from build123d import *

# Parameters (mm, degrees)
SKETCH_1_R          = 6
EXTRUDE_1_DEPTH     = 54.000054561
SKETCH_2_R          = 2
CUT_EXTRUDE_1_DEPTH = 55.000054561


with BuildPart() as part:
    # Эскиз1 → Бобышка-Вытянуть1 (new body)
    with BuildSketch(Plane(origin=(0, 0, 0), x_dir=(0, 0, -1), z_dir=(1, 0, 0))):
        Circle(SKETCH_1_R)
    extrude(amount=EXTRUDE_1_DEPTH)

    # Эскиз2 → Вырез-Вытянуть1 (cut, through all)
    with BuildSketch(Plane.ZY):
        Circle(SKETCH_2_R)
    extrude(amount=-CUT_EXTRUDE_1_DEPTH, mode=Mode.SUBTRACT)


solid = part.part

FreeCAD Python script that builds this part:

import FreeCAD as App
import Part
import Sketcher

doc = App.newDocument("Part")
params = doc.addObject("Spreadsheet::Sheet", "Params")
for row, (alias, value) in enumerate([
    ("sketch1_diameter", "12 mm"),
    ("pad1_length", "54.000055 mm"),
    ("sketch2_diameter", "4 mm"),
], start=1):
    params.set(f"A{row}", alias)
    params.set(f"B{row}", "=" + value)
    params.setAlias(f"B{row}", alias)

body = doc.addObject("PartDesign::Body", "Body")

# Sketch on YZ plane
sketch1 = doc.addObject("Sketcher::SketchObject", "Sketch")
body.addObject(sketch1)
sketch1.AttachmentSupport = (doc.YZ_Plane, [""])
sketch1.MapMode = "FlatFace"
sketch1.addGeometry(Part.Circle(App.Vector(0, 0, 0), App.Vector(0, 0, 1), 6), False)
sketch1.addConstraint([
    Sketcher.Constraint("Coincident", 0, 3, -1, 1),
    Sketcher.Constraint("Diameter", 0, 12.0),
])
sketch1.setExpression("Constraints[1]", "Params.sketch1_diameter")
pad1 = doc.addObject("PartDesign::Pad", "Pad")
body.addObject(pad1)
pad1.Profile = sketch1
pad1.setExpression("Length", "Params.pad1_length")

# Sketch on YZ plane
sketch2 = doc.addObject("Sketcher::SketchObject", "Sketch001")
body.addObject(sketch2)
sketch2.AttachmentSupport = (doc.YZ_Plane, [""])
sketch2.MapMode = "FlatFace"
sketch2.addGeometry(Part.Circle(App.Vector(0, 0, 0), App.Vector(0, 0, 1), 2), False)
sketch2.addConstraint([
    Sketcher.Constraint("Coincident", 0, 3, -1, 1),
    Sketcher.Constraint("Diameter", 0, 4.0),
])
sketch2.setExpression("Constraints[1]", "Params.sketch2_diameter")
pocket1 = doc.addObject("PartDesign::Pocket", "Pocket")
body.addObject(pocket1)
pocket1.Profile = sketch2
pocket1.Type = "ThroughAll"
pocket1.Reversed = True

doc.recompute()
